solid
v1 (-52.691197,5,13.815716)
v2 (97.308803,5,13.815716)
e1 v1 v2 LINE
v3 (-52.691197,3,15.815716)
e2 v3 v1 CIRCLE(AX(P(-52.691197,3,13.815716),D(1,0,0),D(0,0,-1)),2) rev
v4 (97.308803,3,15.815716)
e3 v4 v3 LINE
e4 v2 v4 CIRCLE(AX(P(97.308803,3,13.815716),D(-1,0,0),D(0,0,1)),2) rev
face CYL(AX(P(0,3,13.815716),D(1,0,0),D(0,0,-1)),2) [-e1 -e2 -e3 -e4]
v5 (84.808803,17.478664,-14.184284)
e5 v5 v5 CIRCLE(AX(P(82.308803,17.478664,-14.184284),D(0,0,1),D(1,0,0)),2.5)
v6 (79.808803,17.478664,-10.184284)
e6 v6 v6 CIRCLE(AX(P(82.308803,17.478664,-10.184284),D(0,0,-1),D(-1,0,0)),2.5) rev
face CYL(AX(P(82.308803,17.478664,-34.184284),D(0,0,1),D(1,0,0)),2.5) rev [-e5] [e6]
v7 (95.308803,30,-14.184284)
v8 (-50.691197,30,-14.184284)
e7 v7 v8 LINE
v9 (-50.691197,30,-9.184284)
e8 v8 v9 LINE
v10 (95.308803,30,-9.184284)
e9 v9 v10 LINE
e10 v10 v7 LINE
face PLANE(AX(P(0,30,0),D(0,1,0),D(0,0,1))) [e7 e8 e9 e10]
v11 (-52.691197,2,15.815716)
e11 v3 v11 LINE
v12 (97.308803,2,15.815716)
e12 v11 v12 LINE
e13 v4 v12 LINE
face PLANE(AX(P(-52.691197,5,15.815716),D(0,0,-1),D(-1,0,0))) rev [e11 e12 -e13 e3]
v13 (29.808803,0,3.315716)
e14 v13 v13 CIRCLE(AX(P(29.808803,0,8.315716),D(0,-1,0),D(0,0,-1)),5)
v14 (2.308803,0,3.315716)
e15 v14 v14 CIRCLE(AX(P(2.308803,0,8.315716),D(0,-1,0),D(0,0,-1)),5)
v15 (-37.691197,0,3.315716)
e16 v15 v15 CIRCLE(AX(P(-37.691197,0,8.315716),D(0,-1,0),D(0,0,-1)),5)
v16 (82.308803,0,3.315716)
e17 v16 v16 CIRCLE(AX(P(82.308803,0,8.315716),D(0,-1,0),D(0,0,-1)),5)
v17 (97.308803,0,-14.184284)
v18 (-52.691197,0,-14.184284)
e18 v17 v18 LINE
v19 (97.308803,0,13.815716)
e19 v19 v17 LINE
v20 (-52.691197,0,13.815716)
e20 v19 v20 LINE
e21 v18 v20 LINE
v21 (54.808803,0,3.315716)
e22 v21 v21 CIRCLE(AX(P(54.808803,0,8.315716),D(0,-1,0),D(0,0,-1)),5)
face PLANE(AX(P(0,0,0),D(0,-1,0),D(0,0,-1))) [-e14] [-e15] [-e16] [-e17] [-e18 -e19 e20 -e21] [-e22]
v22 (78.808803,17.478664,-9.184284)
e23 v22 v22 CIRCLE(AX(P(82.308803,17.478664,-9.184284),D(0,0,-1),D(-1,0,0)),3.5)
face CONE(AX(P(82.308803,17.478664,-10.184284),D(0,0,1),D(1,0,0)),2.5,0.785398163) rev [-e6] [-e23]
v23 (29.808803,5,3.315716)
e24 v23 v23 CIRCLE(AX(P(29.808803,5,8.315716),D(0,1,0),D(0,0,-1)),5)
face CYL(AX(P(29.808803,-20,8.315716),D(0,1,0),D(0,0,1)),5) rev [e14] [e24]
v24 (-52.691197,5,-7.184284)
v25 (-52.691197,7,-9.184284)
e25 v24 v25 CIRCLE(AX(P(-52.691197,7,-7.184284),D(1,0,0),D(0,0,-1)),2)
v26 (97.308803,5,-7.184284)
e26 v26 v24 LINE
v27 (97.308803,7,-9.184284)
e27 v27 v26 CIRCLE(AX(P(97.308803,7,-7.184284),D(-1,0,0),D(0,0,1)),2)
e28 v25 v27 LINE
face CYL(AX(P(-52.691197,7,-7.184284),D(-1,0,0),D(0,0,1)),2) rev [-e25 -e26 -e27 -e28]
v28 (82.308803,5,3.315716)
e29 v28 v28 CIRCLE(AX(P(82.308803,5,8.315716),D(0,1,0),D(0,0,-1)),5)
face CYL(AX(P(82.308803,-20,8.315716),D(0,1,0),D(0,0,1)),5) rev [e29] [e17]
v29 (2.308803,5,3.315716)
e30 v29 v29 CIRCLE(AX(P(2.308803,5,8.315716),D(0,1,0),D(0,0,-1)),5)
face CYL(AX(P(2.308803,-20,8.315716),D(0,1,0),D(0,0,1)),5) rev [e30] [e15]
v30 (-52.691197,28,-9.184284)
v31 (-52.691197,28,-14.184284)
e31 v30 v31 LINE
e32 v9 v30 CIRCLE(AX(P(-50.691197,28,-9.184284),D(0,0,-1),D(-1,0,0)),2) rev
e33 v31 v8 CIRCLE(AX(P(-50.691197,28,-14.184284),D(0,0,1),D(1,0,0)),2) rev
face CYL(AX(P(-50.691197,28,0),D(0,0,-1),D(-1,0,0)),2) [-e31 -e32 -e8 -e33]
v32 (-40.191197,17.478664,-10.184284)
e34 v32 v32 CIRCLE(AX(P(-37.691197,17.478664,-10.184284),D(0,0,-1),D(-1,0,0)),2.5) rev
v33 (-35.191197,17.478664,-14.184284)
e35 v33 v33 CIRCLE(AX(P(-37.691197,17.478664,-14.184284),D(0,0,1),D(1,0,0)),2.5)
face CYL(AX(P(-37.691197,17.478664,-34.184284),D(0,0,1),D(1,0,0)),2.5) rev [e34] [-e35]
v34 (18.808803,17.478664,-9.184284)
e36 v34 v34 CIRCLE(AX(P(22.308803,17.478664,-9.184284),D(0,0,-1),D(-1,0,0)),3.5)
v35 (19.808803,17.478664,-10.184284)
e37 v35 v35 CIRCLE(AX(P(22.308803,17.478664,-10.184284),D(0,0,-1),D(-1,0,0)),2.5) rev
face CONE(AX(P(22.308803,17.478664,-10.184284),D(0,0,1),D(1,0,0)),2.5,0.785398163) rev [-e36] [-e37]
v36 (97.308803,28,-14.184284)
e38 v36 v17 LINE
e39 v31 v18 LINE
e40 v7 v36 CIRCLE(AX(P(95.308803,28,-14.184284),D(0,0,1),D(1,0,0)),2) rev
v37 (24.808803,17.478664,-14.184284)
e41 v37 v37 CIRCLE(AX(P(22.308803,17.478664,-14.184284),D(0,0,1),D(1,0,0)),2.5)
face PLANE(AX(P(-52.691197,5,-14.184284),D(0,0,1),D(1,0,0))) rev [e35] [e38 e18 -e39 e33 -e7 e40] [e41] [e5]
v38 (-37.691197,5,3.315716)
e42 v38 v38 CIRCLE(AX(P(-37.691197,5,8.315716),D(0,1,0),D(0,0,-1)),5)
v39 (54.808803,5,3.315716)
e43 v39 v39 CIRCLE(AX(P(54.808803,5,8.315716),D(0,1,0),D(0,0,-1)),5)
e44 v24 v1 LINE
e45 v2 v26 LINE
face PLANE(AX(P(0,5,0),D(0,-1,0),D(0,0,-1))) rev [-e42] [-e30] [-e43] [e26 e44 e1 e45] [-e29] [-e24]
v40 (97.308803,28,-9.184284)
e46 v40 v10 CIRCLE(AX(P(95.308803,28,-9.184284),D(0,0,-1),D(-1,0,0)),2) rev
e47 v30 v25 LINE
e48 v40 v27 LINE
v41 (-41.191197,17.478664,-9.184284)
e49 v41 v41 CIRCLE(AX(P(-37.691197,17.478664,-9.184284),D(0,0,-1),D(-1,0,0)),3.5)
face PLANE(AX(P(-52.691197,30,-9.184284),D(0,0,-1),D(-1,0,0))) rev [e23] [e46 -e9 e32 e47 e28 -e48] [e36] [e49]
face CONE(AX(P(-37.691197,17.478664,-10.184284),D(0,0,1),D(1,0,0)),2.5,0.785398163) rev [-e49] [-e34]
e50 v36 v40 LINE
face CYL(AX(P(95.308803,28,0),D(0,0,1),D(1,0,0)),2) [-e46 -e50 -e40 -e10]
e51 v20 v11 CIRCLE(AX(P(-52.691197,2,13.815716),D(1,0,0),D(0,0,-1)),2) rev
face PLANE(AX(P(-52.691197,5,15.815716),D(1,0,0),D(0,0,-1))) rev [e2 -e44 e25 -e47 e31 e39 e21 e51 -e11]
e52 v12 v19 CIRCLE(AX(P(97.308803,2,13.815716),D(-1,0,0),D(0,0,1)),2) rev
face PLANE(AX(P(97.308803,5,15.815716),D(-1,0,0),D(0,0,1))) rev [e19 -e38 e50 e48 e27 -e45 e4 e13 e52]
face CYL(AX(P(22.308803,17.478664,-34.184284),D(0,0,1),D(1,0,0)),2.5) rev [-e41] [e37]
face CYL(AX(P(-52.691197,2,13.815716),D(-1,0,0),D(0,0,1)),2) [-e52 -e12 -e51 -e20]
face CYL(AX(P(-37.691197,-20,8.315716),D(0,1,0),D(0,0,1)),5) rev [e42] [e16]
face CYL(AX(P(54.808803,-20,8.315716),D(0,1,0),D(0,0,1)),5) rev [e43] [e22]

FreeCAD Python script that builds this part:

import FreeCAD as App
import Part
import Sketcher
Q = App.Units.Quantity


def edges_at(feature, points):
    """Names of the edges that pass closest to the given points."""
    edges = feature.Shape.Edges
    near = lambda p: min(range(len(edges)), key=lambda i: edges[i].distToShape(Part.Vertex(*p))[0])
    return sorted({f"Edge{near(p) + 1}" for p in points})


def add_polygon(sketch, points):
    """Adds a closed chain of lines whose ends are joined by coincident constraints."""
    first, n = sketch.GeometryCount, len(points)
    for a, b in zip(points, points[1:] + points[:1]):
        sketch.addGeometry(Part.LineSegment(App.Vector(*a, 0), App.Vector(*b, 0)), False)
    for i in range(n):
        sketch.addConstraint(Sketcher.Constraint("Coincident", first + i, 2, first + (i + 1) % n, 1))

doc = App.newDocument("Part")
body = doc.addObject("PartDesign::Body", "Body")

# Sketch on XZ plane
sketch1 = doc.addObject("Sketcher::SketchObject", "Sketch")
body.addObject(sketch1)
sketch1.AttachmentSupport = (doc.XZ_Plane, [""])
sketch1.MapMode = "FlatFace"
add_polygon(sketch1, [(-53, -14), (-53, 16), (97, 16), (97, -14)])  # lines 0-3
sketch1.addConstraint([
    Sketcher.Constraint("Vertical", 0),
    Sketcher.Constraint("Horizontal", 1),
    Sketcher.Constraint("Vertical", 2),
    Sketcher.Constraint("Horizontal", 3),
    Sketcher.Constraint("DistanceX", 1, 1, 1, 2, Q("150 mm")),
    Sketcher.Constraint("DistanceY", 0, 1, 0, 2, Q("30 mm")),
    Sketcher.Constraint("DistanceX", 0, 2, -1, 1, Q("52.691197 mm")),
    Sketcher.Constraint("DistanceY", -1, 1, 0, 2, Q("15.815716 mm")),
])
pad1 = doc.addObject("PartDesign::Pad", "Pad")
body.addObject(pad1)
pad1.Profile = sketch1
pad1.Length = 5
pad1.Reversed = True

# Sketch on XZ plane
sketch2 = doc.addObject("Sketcher::SketchObject", "Sketch001")
body.addObject(sketch2)
sketch2.AttachmentSupport = (doc.XZ_Plane, [""])
sketch2.MapMode = "FlatFace"
sketch2.AttachmentOffset = App.Placement(App.Vector(0, 0, -5), App.Rotation())
add_polygon(sketch2, [(-53, -14), (-53, -9), (97, -9), (97, -14)])  # lines 0-3
sketch2.addConstraint([
    Sketcher.Constraint("Vertical", 0),
    Sketcher.Constraint("Horizontal", 1),
    Sketcher.Constraint("Vertical", 2),
    Sketcher.Constraint("Horizontal", 3),
    Sketcher.Constraint("DistanceX", 1, 1, 1, 2, Q("150 mm")),
    Sketcher.Constraint("DistanceY", 0, 1, 0, 2, Q("5 mm")),
    Sketcher.Constraint("DistanceX", 0, 2, -1, 1, Q("52.691197 mm")),
    Sketcher.Constraint("DistanceY", 0, 2, -1, 1, Q("9.184284 mm")),
])
pad2 = doc.addObject("PartDesign::Pad", "Pad001")
body.addObject(pad2)
pad2.Profile = sketch2
pad2.Length = 25
pad2.Reversed = True

# Sketch on XZ plane
sketch3 = doc.addObject("Sketcher::SketchObject", "Sketch002")
body.addObject(sketch3)
sketch3.AttachmentSupport = (doc.XZ_Plane, [""])
sketch3.MapMode = "FlatFace"
sketch3.AttachmentOffset = App.Placement(App.Vector(0, 0, -5), App.Rotation())
sketch3.addGeometry([
    Part.Circle(App.Vector(82, 8, 0), App.Vector(0, 0, 1), 5),  # 0
    Part.Circle(App.Vector(55, 8, 0), App.Vector(0, 0, 1), 5),  # 1
    Part.Circle(App.Vector(30, 8, 0), App.Vector(0, 0, 1), 5),  # 2
    Part.Circle(App.Vector(2, 8, 0), App.Vector(0, 0, 1), 5),  # 3
    Part.Circle(App.Vector(-38, 8, 0), App.Vector(0, 0, 1), 5),  # 4
], False)
sketch3.addConstraint([
    Sketcher.Constraint("Equal", 0, 1),
    Sketcher.Constraint("Equal", 1, 2),
    Sketcher.Constraint("Equal", 2, 3),
    Sketcher.Constraint("Equal", 3, 4),
    Sketcher.Constraint("Horizontal", 0, 3, 1, 3),
    Sketcher.Constraint("Horizontal", 1, 3, 2, 3),
    Sketcher.Constraint("Horizontal", 2, 3, 3, 3),
    Sketcher.Constraint("Horizontal", 3, 3, 4, 3),
    Sketcher.Constraint("Diameter", 0, Q("10 mm")),
    Sketcher.Constraint("DistanceX", 2, 3, 1, 3, Q("25 mm")),
    Sketcher.Constraint("DistanceX", 3, 3, 0, 3, Q("80 mm")),
    Sketcher.Constraint("DistanceX", 4, 3, 3, 3, Q("40 mm")),
    Sketcher.Constraint("DistanceX", 1, 3, 0, 3, Q("27.5 mm")),
    Sketcher.Constraint("DistanceX", -1, 1, 0, 3, Q("82.308803 mm")),
    Sketcher.Constraint("DistanceY", -1, 1, 0, 3, Q("8.315716 mm")),
])
pocket1 = doc.addObject("PartDesign::Pocket", "Pocket")
body.addObject(pocket1)
pocket1.Profile = sketch3
pocket1.Length = 25
pocket1.Reversed = True

# Sketch on XY plane
sketch4 = doc.addObject("Sketcher::SketchObject", "Sketch003")
body.addObject(sketch4)
sketch4.AttachmentSupport = (doc.XY_Plane, [""])
sketch4.MapMode = "FlatFace"
sketch4.AttachmentOffset = App.Placement(App.Vector(0, 0, -9.184284), App.Rotation())
sketch4.addGeometry([
    Part.Circle(App.Vector(82.3, 17.5, 0), App.Vector(0, 0, 1), 2.5),
    Part.Circle(App.Vector(-37.7, 17.5, 0), App.Vector(0, 0, 1), 2.5),
    Part.Circle(App.Vector(22.3, 17.5, 0), App.Vector(0, 0, 1), 2.5),
], False)
sketch4.addConstraint([
    Sketcher.Constraint("Equal", 0, 1),
    Sketcher.Constraint("Equal", 1, 2),
    Sketcher.Constraint("Horizontal", 0, 3, 1, 3),
    Sketcher.Constraint("Horizontal", 1, 3, 2, 3),
    Sketcher.Constraint("Diameter", 0, Q("5 mm")),
    Sketcher.Constraint("DistanceX", 1, 3, 0, 3, Q("120 mm")),
    Sketcher.Constraint("DistanceX", 2, 3, 0, 3, Q("60 mm")),
    Sketcher.Constraint("DistanceX", -1, 1, 0, 3, Q("82.308803 mm")),
    Sketcher.Constraint("DistanceY", -1, 1, 0, 3, Q("17.478664 mm")),
])
pocket2 = doc.addObject("PartDesign::Pocket", "Pocket001")
body.addObject(pocket2)
pocket2.Profile = sketch4
pocket2.Length = 25
doc.recompute()

chamfer = doc.addObject("PartDesign::Chamfer", "Chamfer")
body.addObject(chamfer)
chamfer.Base = (pocket2, edges_at(pocket2, [(79.809, 17.479, -9.184), (-40.191, 17.479, -9.184), (19.809, 17.479, -9.184)]))
chamfer.Size = 1
doc.recompute()

fillet = doc.addObject("PartDesign::Fillet", "Fillet")
body.addObject(fillet)
fillet.Base = (chamfer, edges_at(chamfer, [
    (22.309, 5, 15.816),
    (22.309, 0, 15.816),
    (22.309, 5, -9.184),
    (-52.691, 30, -11.684),
    (97.309, 30, -11.684),
]))
fillet.Radius = 2

doc.recompute()
